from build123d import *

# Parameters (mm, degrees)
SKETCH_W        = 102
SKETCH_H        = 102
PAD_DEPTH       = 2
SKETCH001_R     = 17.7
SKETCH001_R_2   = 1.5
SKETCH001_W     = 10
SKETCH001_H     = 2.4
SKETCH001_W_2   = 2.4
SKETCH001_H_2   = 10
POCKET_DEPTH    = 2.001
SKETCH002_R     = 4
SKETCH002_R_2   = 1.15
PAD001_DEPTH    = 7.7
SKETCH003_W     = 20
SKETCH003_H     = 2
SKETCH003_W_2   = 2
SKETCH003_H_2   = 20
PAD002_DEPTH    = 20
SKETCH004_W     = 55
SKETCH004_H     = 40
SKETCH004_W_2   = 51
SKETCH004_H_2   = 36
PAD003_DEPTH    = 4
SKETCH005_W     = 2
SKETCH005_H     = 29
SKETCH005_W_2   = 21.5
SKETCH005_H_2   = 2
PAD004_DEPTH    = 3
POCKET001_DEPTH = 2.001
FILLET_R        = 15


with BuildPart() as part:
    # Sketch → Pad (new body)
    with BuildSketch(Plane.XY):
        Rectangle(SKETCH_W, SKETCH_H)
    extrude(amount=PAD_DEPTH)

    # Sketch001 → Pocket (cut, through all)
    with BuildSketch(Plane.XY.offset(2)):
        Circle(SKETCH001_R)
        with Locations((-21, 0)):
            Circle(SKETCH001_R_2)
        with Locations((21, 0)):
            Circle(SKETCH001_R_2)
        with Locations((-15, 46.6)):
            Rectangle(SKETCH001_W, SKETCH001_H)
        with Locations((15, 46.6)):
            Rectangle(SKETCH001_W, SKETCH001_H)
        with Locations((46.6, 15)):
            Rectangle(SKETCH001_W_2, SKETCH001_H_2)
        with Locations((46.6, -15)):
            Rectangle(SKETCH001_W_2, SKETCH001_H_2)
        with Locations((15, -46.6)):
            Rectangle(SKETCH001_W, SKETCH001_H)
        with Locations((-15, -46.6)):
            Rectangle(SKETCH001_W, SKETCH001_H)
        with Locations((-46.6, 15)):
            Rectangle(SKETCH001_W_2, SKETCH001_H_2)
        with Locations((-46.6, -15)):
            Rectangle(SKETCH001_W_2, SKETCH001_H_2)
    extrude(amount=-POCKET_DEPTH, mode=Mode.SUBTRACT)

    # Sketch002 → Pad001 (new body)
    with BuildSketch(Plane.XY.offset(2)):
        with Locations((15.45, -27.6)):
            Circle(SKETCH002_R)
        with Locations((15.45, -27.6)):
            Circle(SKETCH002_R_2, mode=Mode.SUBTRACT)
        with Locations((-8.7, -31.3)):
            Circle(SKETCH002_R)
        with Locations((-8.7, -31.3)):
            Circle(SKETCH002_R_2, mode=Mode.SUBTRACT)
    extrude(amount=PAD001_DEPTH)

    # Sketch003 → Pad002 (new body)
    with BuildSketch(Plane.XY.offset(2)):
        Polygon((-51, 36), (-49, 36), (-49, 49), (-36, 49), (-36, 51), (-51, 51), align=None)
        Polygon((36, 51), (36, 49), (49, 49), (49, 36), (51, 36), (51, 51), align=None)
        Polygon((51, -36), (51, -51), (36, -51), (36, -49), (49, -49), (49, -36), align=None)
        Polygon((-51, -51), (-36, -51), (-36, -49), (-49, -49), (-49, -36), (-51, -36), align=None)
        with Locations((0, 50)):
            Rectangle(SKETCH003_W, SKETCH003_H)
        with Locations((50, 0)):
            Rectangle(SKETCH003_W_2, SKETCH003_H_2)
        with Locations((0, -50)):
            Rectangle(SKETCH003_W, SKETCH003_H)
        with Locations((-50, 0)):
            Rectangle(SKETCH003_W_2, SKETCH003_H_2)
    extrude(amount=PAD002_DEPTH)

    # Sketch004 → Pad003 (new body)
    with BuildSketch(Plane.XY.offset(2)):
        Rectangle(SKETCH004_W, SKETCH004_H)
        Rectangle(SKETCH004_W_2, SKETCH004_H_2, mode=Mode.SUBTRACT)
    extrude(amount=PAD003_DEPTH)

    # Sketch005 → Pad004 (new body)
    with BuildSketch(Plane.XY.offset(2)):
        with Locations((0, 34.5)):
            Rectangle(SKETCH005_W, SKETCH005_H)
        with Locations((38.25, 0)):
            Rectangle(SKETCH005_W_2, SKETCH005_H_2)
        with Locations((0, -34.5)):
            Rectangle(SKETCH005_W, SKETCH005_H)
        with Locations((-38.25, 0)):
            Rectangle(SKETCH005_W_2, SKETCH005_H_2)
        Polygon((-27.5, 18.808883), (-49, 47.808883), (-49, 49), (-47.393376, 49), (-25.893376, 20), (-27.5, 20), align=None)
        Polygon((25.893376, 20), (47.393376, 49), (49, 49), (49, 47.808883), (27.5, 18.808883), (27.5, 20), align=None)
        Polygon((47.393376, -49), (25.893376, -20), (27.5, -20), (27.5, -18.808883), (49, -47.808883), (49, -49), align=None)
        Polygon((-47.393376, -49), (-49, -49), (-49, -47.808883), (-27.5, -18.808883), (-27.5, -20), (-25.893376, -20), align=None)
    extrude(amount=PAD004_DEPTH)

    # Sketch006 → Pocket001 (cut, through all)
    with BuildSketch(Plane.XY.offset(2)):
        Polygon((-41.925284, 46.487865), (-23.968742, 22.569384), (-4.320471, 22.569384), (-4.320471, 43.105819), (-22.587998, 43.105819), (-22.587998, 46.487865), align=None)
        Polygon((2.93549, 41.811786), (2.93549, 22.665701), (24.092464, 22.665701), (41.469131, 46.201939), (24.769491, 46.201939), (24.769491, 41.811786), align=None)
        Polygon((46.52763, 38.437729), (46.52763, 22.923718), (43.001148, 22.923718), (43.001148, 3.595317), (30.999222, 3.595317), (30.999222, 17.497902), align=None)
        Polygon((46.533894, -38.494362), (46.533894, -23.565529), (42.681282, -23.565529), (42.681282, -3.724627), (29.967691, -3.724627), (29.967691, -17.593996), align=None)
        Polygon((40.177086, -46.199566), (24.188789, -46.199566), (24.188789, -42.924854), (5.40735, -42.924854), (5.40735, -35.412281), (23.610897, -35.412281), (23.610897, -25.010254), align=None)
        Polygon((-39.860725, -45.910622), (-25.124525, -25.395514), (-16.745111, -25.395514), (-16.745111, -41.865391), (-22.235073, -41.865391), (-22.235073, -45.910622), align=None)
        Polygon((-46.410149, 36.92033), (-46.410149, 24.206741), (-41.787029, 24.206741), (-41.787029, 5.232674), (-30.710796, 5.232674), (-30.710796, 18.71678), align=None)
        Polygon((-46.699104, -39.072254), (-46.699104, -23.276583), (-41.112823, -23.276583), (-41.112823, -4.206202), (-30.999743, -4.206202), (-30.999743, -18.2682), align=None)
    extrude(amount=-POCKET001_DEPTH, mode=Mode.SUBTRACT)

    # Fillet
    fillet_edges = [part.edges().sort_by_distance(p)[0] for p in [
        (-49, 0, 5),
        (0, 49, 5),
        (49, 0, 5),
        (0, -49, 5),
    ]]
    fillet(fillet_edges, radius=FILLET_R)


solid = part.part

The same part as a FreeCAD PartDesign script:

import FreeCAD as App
import Part
import Sketcher

V = App.Vector


def edges_at(feature, points):
    """Names of the edges that pass closest to the given points."""
    edges = feature.Shape.Edges
    near = lambda p: min(range(len(edges)), key=lambda i: edges[i].distToShape(Part.Vertex(*p))[0])
    return sorted({f"Edge{near(p) + 1}" for p in points})


def add_polygon(sketch, points):
    """Adds a closed chain of lines whose ends are joined by coincident constraints."""
    first, n = sketch.GeometryCount, len(points)
    for a, b in zip(points, points[1:] + points[:1]):
        sketch.addGeometry(Part.LineSegment(App.Vector(*a, 0), App.Vector(*b, 0)), False)
    for i in range(n):
        sketch.addConstraint(Sketcher.Constraint("Coincident", first + i, 2, first + (i + 1) % n, 1))

doc = App.newDocument("Part")
body = doc.addObject("PartDesign::Body", "Body")

# Sketch on XY plane
sketch1 = doc.addObject("Sketcher::SketchObject", "Sketch")
body.addObject(sketch1)
sketch1.AttachmentSupport = (doc.XY_Plane, [""])
sketch1.MapMode = "FlatFace"
add_polygon(sketch1, [(-51, 51), (-51, -51), (51, -51), (51, 51)])  # lines 0-3
sketch1.addConstraint([
    Sketcher.Constraint("Vertical", 0),
    Sketcher.Constraint("Horizontal", 1),
    Sketcher.Constraint("Vertical", 2),
    Sketcher.Constraint("Horizontal", 3),
    Sketcher.Constraint("Symmetric", 0, 2, 2, 2, -1, 1),
    Sketcher.Constraint("Equal", 3, 0),
    Sketcher.Constraint("DistanceX", 1, 1, 1, 2, 102.0),
])
pad1 = doc.addObject("PartDesign::Pad", "Pad")
body.addObject(pad1)
pad1.Profile = sketch1
pad1.Length = 2

# Sketch on XY plane
sketch2 = doc.addObject("Sketcher::SketchObject", "Sketch001")
body.addObject(sketch2)
sketch2.AttachmentSupport = (doc.XY_Plane, [""])
sketch2.MapMode = "FlatFace"
sketch2.AttachmentOffset = App.Placement(V(0, 0, 2), App.Rotation())
sketch2.addGeometry(Part.Circle(V(0, 0, 0), V(0, 0, 1), 17.7), False)  # 0
sketch2.addGeometry(Part.Circle(V(-21, 0, 0), V(0, 0, 1), 1.5), False)  # 1
sketch2.addGeometry(Part.Circle(V(21, 0, 0), V(0, 0, 1), 1.5), False)  # 2
add_polygon(sketch2, [(-20, 47.8), (-20, 45.4), (-10, 45.4), (-10, 47.8)])  # lines 3-6
add_polygon(sketch2, [(10, 47.8), (10, 45.4), (20, 45.4), (20, 47.8)])  # lines 7-10
add_polygon(sketch2, [(45.4, 20), (45.4, 10), (47.8, 10), (47.8, 20)])  # lines 11-14
add_polygon(sketch2, [(45.4, -10), (45.4, -20), (47.8, -20), (47.8, -10)])  # lines 15-18
add_polygon(sketch2, [(10, -45.4), (10, -47.8), (20, -47.8), (20, -45.4)])  # lines 19-22
add_polygon(sketch2, [(-20, -45.4), (-20, -47.8), (-10, -47.8), (-10, -45.4)])  # lines 23-26
add_polygon(sketch2, [(-47.8, 20), (-47.8, 10), (-45.4, 10), (-45.4, 20)])  # lines 27-30
add_polygon(sketch2, [(-47.8, -10), (-47.8, -20), (-45.4, -20), (-45.4, -10)])  # lines 31-34
sketch2.addConstraint([
    Sketcher.Constraint("Vertical", 3),
    Sketcher.Constraint("Horizontal", 4),
    Sketcher.Constraint("Vertical", 5),
    Sketcher.Constraint("Horizontal", 6),
    Sketcher.Constraint("Vertical", 7),
    Sketcher.Constraint("Horizontal", 8),
    Sketcher.Constraint("Vertical", 9),
    Sketcher.Constraint("Horizontal", 10),
    Sketcher.Constraint("Vertical", 11),
    Sketcher.Constraint("Horizontal", 12),
    Sketcher.Constraint("Vertical", 13),
    Sketcher.Constraint("Horizontal", 14),
    Sketcher.Constraint("Vertical", 15),
    Sketcher.Constraint("Horizontal", 16),
    Sketcher.Constraint("Vertical", 17),
    Sketcher.Constraint("Horizontal", 18),
    Sketcher.Constraint("Vertical", 19),
    Sketcher.Constraint("Horizontal", 20),
    Sketcher.Constraint("Vertical", 21),
    Sketcher.Constraint("Horizontal", 22),
    Sketcher.Constraint("Vertical", 23),
    Sketcher.Constraint("Horizontal", 24),
    Sketcher.Constraint("Vertical", 25),
    Sketcher.Constraint("Horizontal", 26),
    Sketcher.Constraint("Vertical", 27),
    Sketcher.Constraint("Horizontal", 28),
    Sketcher.Constraint("Vertical", 29),
    Sketcher.Constraint("Horizontal", 30),
    Sketcher.Constraint("Vertical", 31),
    Sketcher.Constraint("Horizontal", 32),
    Sketcher.Constraint("Vertical", 33),
    Sketcher.Constraint("Horizontal", 34),
    Sketcher.Constraint("Coincident", 0, 3, -1, 1),
    Sketcher.Constraint("Equal", 1, 2),
    Sketcher.Constraint("Symmetric", 1, 3, 2, 3, -1, 1),
    Sketcher.Constraint("Symmetric", 5, 2, 19, 2, -1, 1),
    Sketcher.Constraint("Symmetric", 3, 2, 21, 2, -1, 1),
    Sketcher.Constraint("Symmetric", 9, 2, 23, 2, -1, 1),
    Sketcher.Constraint("Symmetric", 7, 2, 25, 2, -1, 1),
    Sketcher.Constraint("Symmetric", 17, 2, 27, 2, -1, 1),
    Sketcher.Constraint("Symmetric", 15, 2, 29, 2, -1, 1),
    Sketcher.Constraint("Symmetric", 13, 2, 31, 2, -1, 1),
    Sketcher.Constraint("Symmetric", 11, 2, 33, 2, -1, 1),
    Sketcher.Constraint("Symmetric", 4, 2, 7, 2, -2),
    Sketcher.Constraint("Symmetric", 6, 2, 9, 2, -2),
    Sketcher.Constraint("Symmetric", 12, 2, 27, 2, -2),
    Sketcher.Constraint("Symmetric", 14, 2, 29, 2, -2),
    Sketcher.Constraint("PointOnObject", 1, 3, -1),
    Sketcher.Constraint("Equal", 34, 3),
    Sketcher.Constraint("Equal", 26, 11),
    Sketcher.Constraint("Diameter", 1, 3.0),
    Sketcher.Constraint("Diameter", 0, 35.4),
    Sketcher.Constraint("DistanceX", 4, 1, 4, 2, 10.0),
    Sketcher.Constraint("DistanceX", 12, 1, 12, 2, 2.4),
    Sketcher.Constraint("DistanceX", 1, 3, -1, 1, 21.0),
    Sketcher.Constraint("DistanceX", 3, 2, -1, 1, 20.0),
    Sketcher.Constraint("DistanceY", -1, 1, 11, 2, 10.0),
    Sketcher.Constraint("DistanceY", -1, 1, 3, 2, 45.4),
    Sketcher.Constraint("DistanceX", -1, 1, 11, 2, 45.4),
])
pocket1 = doc.addObject("PartDesign::Pocket", "Pocket")
body.addObject(pocket1)
pocket1.Profile = sketch2
pocket1.Type = "ThroughAll"

# Sketch on XY plane
sketch3 = doc.addObject("Sketcher::SketchObject", "Sketch002")
body.addObject(sketch3)
sketch3.AttachmentSupport = (doc.XY_Plane, [""])
sketch3.MapMode = "FlatFace"
sketch3.AttachmentOffset = App.Placement(V(0, 0, 2), App.Rotation())
sketch3.addGeometry([
    Part.Circle(V(15.45, -27.6, 0), V(0, 0, 1), 4),
    Part.Circle(V(15.45, -27.6, 0), V(0, 0, 1), 1.15),
    Part.Circle(V(-8.7, -31.3, 0), V(0, 0, 1), 4),
    Part.Circle(V(-8.7, -31.3, 0), V(0, 0, 1), 1.15),
], False)
sketch3.addConstraint([
    Sketcher.Constraint("Coincident", 1, 3, 0, 3),
    Sketcher.Constraint("Coincident", 3, 3, 2, 3),
    Sketcher.Constraint("Equal", 0, 2),
    Sketcher.Constraint("Equal", 1, 3),
    Sketcher.Constraint("Diameter", 0, 8.0),
    Sketcher.Constraint("Diameter", 1, 2.3),
    Sketcher.Constraint("DistanceY", 0, 3, -1, 1, 27.6),
    Sketcher.Constraint("DistanceX", 2, 3, -1, 1, 8.7),
    Sketcher.Constraint("DistanceY", 2, 3, -1, 1, 31.3),
    Sketcher.Constraint("DistanceX", -1, 1, 0, 3, 15.45),
])
pad2 = doc.addObject("PartDesign::Pad", "Pad001")
body.addObject(pad2)
pad2.Profile = sketch3
pad2.Length = 7.7

# Sketch on XY plane
sketch4 = doc.addObject("Sketcher::SketchObject", "Sketch003")
body.addObject(sketch4)
sketch4.AttachmentSupport = (doc.XY_Plane, [""])
sketch4.MapMode = "FlatFace"
sketch4.AttachmentOffset = App.Placement(V(0, 0, 2), App.Rotation())
add_polygon(sketch4, [(-51, 36), (-49, 36), (-49, 49), (-36, 49), (-36, 51), (-51, 51)])  # lines 0-5
add_polygon(sketch4, [(36, 51), (36, 49), (49, 49), (49, 36), (51, 36), (51, 51)])  # lines 6-11
add_polygon(sketch4, [(51, -51), (51, -36), (49, -36), (49, -49), (36, -49), (36, -51)])  # lines 12-17
add_polygon(sketch4, [(-51, -51), (-36, -51), (-36, -49), (-49, -49), (-49, -36), (-51, -36)])  # lines 18-23
add_polygon(sketch4, [(-10, 51), (-10, 49), (10, 49), (10, 51)])  # lines 24-27
add_polygon(sketch4, [(49, 10), (49, -10), (51, -10), (51, 10)])  # lines 28-31
add_polygon(sketch4, [(-10, -49), (-10, -51), (10, -51), (10, -49)])  # lines 32-35
add_polygon(sketch4, [(-51, 10), (-51, -10), (-49, -10), (-49, 10)])  # lines 36-39
sketch4.addConstraint([
    Sketcher.Constraint("Horizontal", 0),
    Sketcher.Constraint("Vertical", 1),
    Sketcher.Constraint("Horizontal", 2),
    Sketcher.Constraint("Vertical", 3),
    Sketcher.Constraint("Horizontal", 4),
    Sketcher.Constraint("Vertical", 5),
    Sketcher.Constraint("Vertical", 6),
    Sketcher.Constraint("Horizontal", 7),
    Sketcher.Constraint("Vertical", 8),
    Sketcher.Constraint("Horizontal", 9),
    Sketcher.Constraint("Vertical", 10),
    Sketcher.Constraint("Horizontal", 11),
    Sketcher.Constraint("Vertical", 12),
    Sketcher.Constraint("Horizontal", 13),
    Sketcher.Constraint("Vertical", 14),
    Sketcher.Constraint("Horizontal", 15),
    Sketcher.Constraint("Vertical", 16),
    Sketcher.Constraint("Horizontal", 17),
    Sketcher.Constraint("Horizontal", 18),
    Sketcher.Constraint("Vertical", 19),
    Sketcher.Constraint("Horizontal", 20),
    Sketcher.Constraint("Vertical", 21),
    Sketcher.Constraint("Horizontal", 22),
    Sketcher.Constraint("Vertical", 23),
    Sketcher.Constraint("Vertical", 24),
    Sketcher.Constraint("Horizontal", 25),
    Sketcher.Constraint("Vertical", 26),
    Sketcher.Constraint("Horizontal", 27),
    Sketcher.Constraint("Vertical", 28),
    Sketcher.Constraint("Horizontal", 29),
    Sketcher.Constraint("Vertical", 30),
    Sketcher.Constraint("Horizontal", 31),
    Sketcher.Constraint("Vertical", 32),
    Sketcher.Constraint("Horizontal", 33),
    Sketcher.Constraint("Vertical", 34),
    Sketcher.Constraint("Horizontal", 35),
    Sketcher.Constraint("Vertical", 36),
    Sketcher.Constraint("Horizontal", 37),
    Sketcher.Constraint("Vertical", 38),
    Sketcher.Constraint("Horizontal", 39),
    Sketcher.Constraint("Symmetric", 5, 2, 12, 2, -1, 1),
    Sketcher.Constraint("Symmetric", 1, 2, 14, 2, -1, 1),
    Sketcher.Constraint("Symmetric", 3, 2, 16, 2, -1, 1),
    Sketcher.Constraint("Symmetric", 11, 2, 18, 2, -1, 1),
    Sketcher.Constraint("Symmetric", 7, 2, 20, 2, -1, 1),
    Sketcher.Constraint("Symmetric", 9, 2, 22, 2, -1, 1),
    Sketcher.Constraint("Symmetric", 26, 2, 32, 2, -1, 1),
    Sketcher.Constraint("Symmetric", 24, 2, 34, 2, -1, 1),
    Sketcher.Constraint("Symmetric", 30, 2, 36, 2, -1, 1),
    Sketcher.Constraint("Symmetric", 28, 2, 38, 2, -1, 1),
    Sketcher.Constraint("Symmetric", 2, 2, 6, 2, -2),
    Sketcher.Constraint("Symmetric", 0, 2, 8, 2, -2),
    Sketcher.Constraint("Symmetric", 4, 2, 10, 2, -2),
    Sketcher.Constraint("Horizontal", 7, 2, 24, 2),
    Sketcher.Constraint("Horizontal", 11, 2, 26, 2),
    Sketcher.Constraint("Horizontal", 29, 2, 36, 2),
    Sketcher.Constraint("Vertical", 14, 2, 28, 2),
    Sketcher.Constraint("Vertical", 17, 2, 29, 2),
    Sketcher.Constraint("Vertical", 27, 2, 32, 2),
    Sketcher.Constraint("Equal", 20, 1),
    Sketcher.Constraint("Equal", 39, 3),
    Sketcher.Constraint("Equal", 35, 28),
    Sketcher.Constraint("DistanceX", 0, 1, 0, 2, 2.0),
    Sketcher.Constraint("DistanceX", 2, 1, 2, 2, 13.0),
    Sketcher.Constraint("DistanceX", 25, 1, 25, 2, 20.0),
    Sketcher.Constraint("DistanceX", 0, 2, -1, 1, 49.0),
    Sketcher.Constraint("DistanceY", -1, 1, 0, 2, 36.0),
])
pad3 = doc.addObject("PartDesign::Pad", "Pad002")
body.addObject(pad3)
pad3.Profile = sketch4
pad3.Length = 20

# Sketch on XY plane
sketch5 = doc.addObject("Sketcher::SketchObject", "Sketch004")
body.addObject(sketch5)
sketch5.AttachmentSupport = (doc.XY_Plane, [""])
sketch5.MapMode = "FlatFace"
sketch5.AttachmentOffset = App.Placement(V(0, 0, 2), App.Rotation())
add_polygon(sketch5, [(-27.5, 20), (-27.5, -20), (27.5, -20), (27.5, 20)])  # lines 0-3
add_polygon(sketch5, [(25.5, -18), (-25.5, -18), (-25.5, 18), (25.5, 18)])  # lines 4-7
sketch5.addConstraint([
    Sketcher.Constraint("Vertical", 0),
    Sketcher.Constraint("Horizontal", 1),
    Sketcher.Constraint("Vertical", 2),
    Sketcher.Constraint("Horizontal", 3),
    Sketcher.Constraint("Horizontal", 4),
    Sketcher.Constraint("Vertical", 5),
    Sketcher.Constraint("Horizontal", 6),
    Sketcher.Constraint("Vertical", 7),
    Sketcher.Constraint("Symmetric", 0, 2, 2, 2, -1, 1),
    Sketcher.Constraint("Symmetric", 4, 2, 6, 2, -1, 1),
    Sketcher.Constraint("DistanceX", 1, 1, 1, 2, 55.0),
    Sketcher.Constraint("DistanceX", 4, 2, 4, 1, 51.0),
    Sketcher.Constraint("DistanceY", 0, 2, 0, 1, 40.0),
    Sketcher.Constraint("DistanceY", 5, 1, 5, 2, 36.0),
])
pad4 = doc.addObject("PartDesign::Pad", "Pad003")
body.addObject(pad4)
pad4.Profile = sketch5
pad4.Length = 4

# Sketch on XY plane
sketch6 = doc.addObject("Sketcher::SketchObject", "Sketch005")
body.addObject(sketch6)
sketch6.AttachmentSupport = (doc.XY_Plane, [""])
sketch6.MapMode = "FlatFace"
sketch6.AttachmentOffset = App.Placement(V(0, 0, 2), App.Rotation())
add_polygon(sketch6, [(-1, 49), (-1, 20), (1, 20), (1, 49)])  # lines 0-3
add_polygon(sketch6, [(27.5, 1), (27.5, -1), (49, -1), (49, 1)])  # lines 4-7
add_polygon(sketch6, [(-1, -20), (-1, -49), (1, -49), (1, -20)])  # lines 8-11
add_polygon(sketch6, [(-49, 1), (-49, -1), (-27.5, -1), (-27.5, 1)])  # lines 12-15
add_polygon(sketch6, [(-49, 47.808883), (-27.5, 18.808883), (-27.5, 20), (-25.893376, 20), (-47.393376, 49), (-49, 49)])  # lines 16-21
add_polygon(sketch6, [(47.393376, 49), (25.893376, 20), (27.5, 20), (27.5, 18.808883), (49, 47.808883), (49, 49)])  # lines 22-27
add_polygon(sketch6, [(25.893376, -20), (47.393376, -49), (49, -49), (49, -47.808883), (27.5, -18.808883), (27.5, -20)])  # lines 28-33
add_polygon(sketch6, [(-49, -49), (-47.393376, -49), (-25.893376, -20), (-27.5, -20), (-27.5, -18.808883), (-49, -47.808883)])  # lines 34-39
sketch6.addConstraint([
    Sketcher.Constraint("Vertical", 0),
    Sketcher.Constraint("Horizontal", 1),
    Sketcher.Constraint("Vertical", 2),
    Sketcher.Constraint("Horizontal", 3),
    Sketcher.Constraint("Vertical", 4),
    Sketcher.Constraint("Horizontal", 5),
    Sketcher.Constraint("Vertical", 6),
    Sketcher.Constraint("Horizontal", 7),
    Sketcher.Constraint("Vertical", 8),
    Sketcher.Constraint("Horizontal", 9),
    Sketcher.Constraint("Vertical", 10),
    Sketcher.Constraint("Horizontal", 11),
    Sketcher.Constraint("Vertical", 12),
    Sketcher.Constraint("Horizontal", 13),
    Sketcher.Constraint("Vertical", 14),
    Sketcher.Constraint("Horizontal", 15),
    Sketcher.Constraint("Vertical", 17),
    Sketcher.Constraint("Horizontal", 18),
    Sketcher.Constraint("Horizontal", 20),
    Sketcher.Constraint("Vertical", 21),
    Sketcher.Constraint("Horizontal", 23),
    Sketcher.Constraint("Vertical", 24),
    Sketcher.Constraint("Vertical", 26),
    Sketcher.Constraint("Horizontal", 27),
    Sketcher.Constraint("Horizontal", 29),
    Sketcher.Constraint("Vertical", 30),
    Sketcher.Constraint("Vertical", 32),
    Sketcher.Constraint("Horizontal", 33),
    Sketcher.Constraint("Horizontal", 34),
    Sketcher.Constraint("Horizontal", 36),
    Sketcher.Constraint("Vertical", 37),
    Sketcher.Constraint("Vertical", 39),
    Sketcher.Constraint("Symmetric", 2, 2, 8, 2, -1, 1),
    Sketcher.Constraint("Symmetric", 0, 2, 10, 2, -1, 1),
    Sketcher.Constraint("Symmetric", 6, 2, 12, 2, -1, 1),
    Sketcher.Constraint("Symmetric", 4, 2, 14, 2, -1, 1),
    Sketcher.Constraint("Symmetric", 19, 2, 28, 2, -1, 1),
    Sketcher.Constraint("Symmetric", 21, 2, 30, 2, -1, 1),
    Sketcher.Constraint("Symmetric", 16, 2, 31, 2, -1, 1),
    Sketcher.Constraint("Symmetric", 18, 2, 33, 2, -1, 1),
    Sketcher.Constraint("Symmetric", 27, 2, 34, 2, -1, 1),
    Sketcher.Constraint("Symmetric", 22, 2, 35, 2, -1, 1),
    Sketcher.Constraint("Symmetric", 24, 2, 37, 2, -1, 1),
    Sketcher.Constraint("Symmetric", 25, 2, 38, 2, -1, 1),
    Sketcher.Constraint("Symmetric", 18, 2, 22, 2, -2),
    Sketcher.Constraint("Symmetric", 16, 2, 24, 2, -2),
    Sketcher.Constraint("Symmetric", 21, 2, 25, 2, -2),
    Sketcher.Constraint("Symmetric", 19, 2, 27, 2, -2),
    Sketcher.Constraint("Parallel", 16, 19),
    Sketcher.Constraint("Horizontal", 5, 2, 12, 2),
    Sketcher.Constraint("Horizontal", 1, 2, 17, 2),
    Sketcher.Constraint("Horizontal", 3, 2, 19, 2),
    Sketcher.Constraint("Vertical", 3, 2, 8, 2),
    Sketcher.Constraint("Vertical", 14, 2, 16, 2),
    Sketcher.Constraint("Vertical", 15, 2, 20, 2),
    Sketcher.Constraint("Equal", 18, 20),
    Sketcher.Constraint("Equal", 11, 4),
    Sketcher.Constraint("DistanceX", 1, 1, 1, 2, 2.0),
    Sketcher.Constraint("DistanceY", 0, 2, 0, 1, 29.0),
    Sketcher.Constraint("DistanceX", 5, 1, 5, 2, 21.5),
    Sketcher.Constraint("DistanceY", -1, 1, 0, 2, 20.0),
    Sketcher.Constraint("DistanceX", -1, 1, 5, 2, 49.0),
    Sketcher.Constraint("DistanceX", 18, 1, 18, 2, 1.606624),
    Sketcher.Constraint("DistanceY", 17, 1, 17, 2, 1.191117),
])
pad5 = doc.addObject("PartDesign::Pad", "Pad004")
body.addObject(pad5)
pad5.Profile = sketch6
pad5.Length = 3

# Sketch on XY plane
sketch7 = doc.addObject("Sketcher::SketchObject", "Sketch006")
body.addObject(sketch7)
sketch7.AttachmentSupport = (doc.XY_Plane, [""])
sketch7.MapMode = "FlatFace"
sketch7.AttachmentOffset = App.Placement(V(0, 0, 2), App.Rotation())
add_polygon(sketch7, [(-41.925284, 46.487865), (-23.968742, 22.569384), (-4.320471, 22.569384), (-4.320471, 43.105819), (-22.587998, 43.105819), (-22.587998, 46.487865)])  # lines 0-5
add_polygon(sketch7, [(2.93549, 41.811786), (2.93549, 22.665701), (24.092464, 22.665701), (41.469131, 46.201939), (24.769491, 46.201939), (24.769491, 41.811786)])  # lines 6-11
add_polygon(sketch7, [(46.52763, 22.923718), (46.52763, 38.437729), (30.999222, 17.497902), (30.999222, 3.595317), (43.001148, 3.595317), (43.001148, 22.923718)])  # lines 12-17
add_polygon(sketch7, [(46.533894, -38.494362), (46.533894, -23.565529), (42.681282, -23.565529), (42.681282, -3.724627), (29.967691, -3.724627), (29.967691, -17.593996)])  # lines 18-23
add_polygon(sketch7, [(24.188789, -46.199566), (40.177086, -46.199566), (23.610897, -25.010254), (23.610897, -35.412281), (5.40735, -35.412281), (5.40735, -42.924854), (24.188789, -42.924854)])  # lines 24-30
add_polygon(sketch7, [(-25.124525, -25.395514), (-39.860725, -45.910622), (-22.235073, -45.910622), (-22.235073, -41.865391), (-16.745111, -41.865391), (-16.745111, -25.395514)])  # lines 31-36
add_polygon(sketch7, [(-46.410149, 36.92033), (-46.410149, 24.206741), (-41.787029, 24.206741), (-41.787029, 5.232674), (-30.710796, 5.232674), (-30.710796, 18.71678)])  # lines 37-42
add_polygon(sketch7, [(-46.699104, -23.276583), (-46.699104, -39.072254), (-30.999743, -18.2682), (-30.999743, -4.206202), (-41.112823, -4.206202), (-41.112823, -23.276583)])  # lines 43-48
sketch7.addConstraint([
    Sketcher.Constraint("Horizontal", 1),
    Sketcher.Constraint("Vertical", 2),
    Sketcher.Constraint("Horizontal", 3),
    Sketcher.Constraint("Vertical", 4),
    Sketcher.Constraint("Horizontal", 5),
    Sketcher.Constraint("Vertical", 6),
    Sketcher.Constraint("Horizontal", 7),
    Sketcher.Constraint("Horizontal", 9),
    Sketcher.Constraint("Vertical", 10),
    Sketcher.Constraint("Horizontal", 11),
    Sketcher.Constraint("Vertical", 12),
    Sketcher.Constraint("Vertical", 14),
    Sketcher.Constraint("Horizontal", 15),
    Sketcher.Constraint("Vertical", 16),
    Sketcher.Constraint("Horizontal", 17),
    Sketcher.Constraint("Vertical", 18),
    Sketcher.Constraint("Horizontal", 19),
    Sketcher.Constraint("Vertical", 20),
    Sketcher.Constraint("Horizontal", 21),
    Sketcher.Constraint("Vertical", 22),
    Sketcher.Constraint("Horizontal", 24),
    Sketcher.Constraint("Vertical", 26),
    Sketcher.Constraint("Horizontal", 27),
    Sketcher.Constraint("Vertical", 28),
    Sketcher.Constraint("Horizontal", 29),
    Sketcher.Constraint("Vertical", 30),
    Sketcher.Constraint("Horizontal", 32),
    Sketcher.Constraint("Vertical", 33),
    Sketcher.Constraint("Horizontal", 34),
    Sketcher.Constraint("Vertical", 35),
    Sketcher.Constraint("Horizontal", 36),
    Sketcher.Constraint("Vertical", 37),
    Sketcher.Constraint("Horizontal", 38),
    Sketcher.Constraint("Vertical", 39),
    Sketcher.Constraint("Horizontal", 40),
    Sketcher.Constraint("Vertical", 41),
    Sketcher.Constraint("Vertical", 43),
    Sketcher.Constraint("Vertical", 45),
    Sketcher.Constraint("Horizontal", 46),
    Sketcher.Constraint("Vertical", 47),
    Sketcher.Constraint("Horizontal", 48),
    Sketcher.Constraint("DistanceX", 11, 2, 11, 1, 21.834001),
    Sketcher.Constraint("DistanceY", 16, 1, 16, 2, 19.328401),
    Sketcher.Constraint("DistanceY", 20, 1, 20, 2, 19.840902),
    Sketcher.Constraint("DistanceX", 1, 1, 1, 2, 19.648271),
    Sketcher.Constraint("DistanceX", 9, 2, 9, 1, 16.69964),
    Sketcher.Constraint("DistanceX", 19, 2, 19, 1, 3.852612),
    Sketcher.Constraint("DistanceX", 21, 2, 21, 1, 12.713591),
    Sketcher.Constraint("DistanceX", 29, 1, 29, 2, 18.781439),
    Sketcher.Constraint("DistanceX", 34, 1, 34, 2, 5.489962),
    Sketcher.Constraint("DistanceX", 38, 1, 38, 2, 4.62312),
    Sketcher.Constraint("DistanceX", 46, 2, 46, 1, 10.11308),
    Sketcher.Constraint("DistanceX", 48, 2, 48, 1, 5.586281),
    Sketcher.Constraint("DistanceY", 12, 1, 12, 2, 15.514011),
    Sketcher.Constraint("DistanceY", 22, 2, 22, 1, 13.869369),
    Sketcher.Constraint("DistanceY", 30, 2, 30, 1, 3.274712),
    Sketcher.Constraint("DistanceY", 33, 1, 33, 2, 4.045231),
    Sketcher.Constraint("DistanceY", 37, 2, 37, 1, 12.713589),
    Sketcher.Constraint("DistanceY", 43, 2, 43, 1, 15.795671),
    Sketcher.Constraint("DistanceY", 47, 2, 47, 1, 19.070381),
    Sketcher.Constraint("DistanceY", -1, 1, 6, 2, 22.665701),
    Sketcher.Constraint("DistanceY", -1, 1, 13, 2, 17.497902),
    Sketcher.Constraint("DistanceY", 44, 2, -1, 1, 18.2682),
    Sketcher.Constraint("DistanceX", 2, 2, 8, 2, 45.789602),
    Sketcher.Constraint("DistanceY", 1, 2, 11, 2, 19.242402),
    Sketcher.Constraint("DistanceX", 8, 2, 12, 2, 5.058499),
    Sketcher.Constraint("DistanceY", 28, 2, 25, 2, 17.9146),
    Sketcher.Constraint("DistanceX", 31, 2, 36, 2, 14.7362),
    Sketcher.Constraint("Distance", 8, 29.255821),
    Sketcher.Constraint("Distance", 13, 26.069289),
    Sketcher.Constraint("Distance", 23, 26.66954),
    Sketcher.Constraint("Distance", 25, 26.896572),
    Sketcher.Constraint("Distance", 31, 25.259162),
    Sketcher.Constraint("Distance", 42, 24.03828),
    Sketcher.Constraint("DistanceX", 3, 2, 3, 1, 18.267527),
    Sketcher.Constraint("DistanceX", 5, 2, 5, 1, 19.337286),
    Sketcher.Constraint("DistanceX", 7, 1, 7, 2, 21.156974),
    Sketcher.Constraint("DistanceX", 15, 1, 15, 2, 12.001926),
    Sketcher.Constraint("DistanceX", 17, 1, 17, 2, 3.526482),
    Sketcher.Constraint("DistanceX", 24, 1, 24, 2, 15.988297),
    Sketcher.Constraint("DistanceX", 32, 1, 32, 2, 17.625652),
    Sketcher.Constraint("DistanceX", 40, 1, 40, 2, 11.076233),
    Sketcher.Constraint("DistanceY", 2, 1, 2, 2, 20.536435),
    Sketcher.Constraint("DistanceY", 4, 1, 4, 2, 3.382046),
    Sketcher.Constraint("DistanceY", 6, 2, 6, 1, 19.146085),
    Sketcher.Constraint("DistanceY", 26, 2, 26, 1, 10.402027),
    Sketcher.Constraint("DistanceY", 39, 2, 39, 1, 18.974067),
    Sketcher.Constraint("DistanceY", 45, 1, 45, 2, 14.061998),
    Sketcher.Constraint("DistanceX", 0, 2, -1, 1, 23.968742),
    Sketcher.Constraint("DistanceY", 18, 2, -1, 1, 23.565529),
    Sketcher.Constraint("DistanceX", -1, 1, 21, 2, 29.967691),
    Sketcher.Constraint("DistanceY", 26, 2, -1, 1, 35.412281),
    Sketcher.Constraint("DistanceX", -1, 1, 27, 2, 5.40735),
    Sketcher.Constraint("DistanceY", 31, 2, -1, 1, 45.910622),
    Sketcher.Constraint("DistanceX", 34, 2, -1, 1, 16.745111),
    Sketcher.Constraint("DistanceX", 37, 2, -1, 1, 46.410149),
    Sketcher.Constraint("DistanceY", -1, 1, 37, 2, 24.206741),
    Sketcher.Constraint("DistanceX", 43, 2, 31, 2, 6.838379),
])
pocket2 = doc.addObject("PartDesign::Pocket", "Pocket001")
body.addObject(pocket2)
pocket2.Profile = sketch7
pocket2.Type = "ThroughAll"
doc.recompute()

fillet = doc.addObject("PartDesign::Fillet", "Fillet")
body.addObject(fillet)
fillet.Base = (pocket2, edges_at(pocket2, [
    (-49, 0, 5),
    (0, 49, 5),
    (49, 0, 5),
    (0, -49, 5),
]))
fillet.Radius = 15

doc.recompute()
